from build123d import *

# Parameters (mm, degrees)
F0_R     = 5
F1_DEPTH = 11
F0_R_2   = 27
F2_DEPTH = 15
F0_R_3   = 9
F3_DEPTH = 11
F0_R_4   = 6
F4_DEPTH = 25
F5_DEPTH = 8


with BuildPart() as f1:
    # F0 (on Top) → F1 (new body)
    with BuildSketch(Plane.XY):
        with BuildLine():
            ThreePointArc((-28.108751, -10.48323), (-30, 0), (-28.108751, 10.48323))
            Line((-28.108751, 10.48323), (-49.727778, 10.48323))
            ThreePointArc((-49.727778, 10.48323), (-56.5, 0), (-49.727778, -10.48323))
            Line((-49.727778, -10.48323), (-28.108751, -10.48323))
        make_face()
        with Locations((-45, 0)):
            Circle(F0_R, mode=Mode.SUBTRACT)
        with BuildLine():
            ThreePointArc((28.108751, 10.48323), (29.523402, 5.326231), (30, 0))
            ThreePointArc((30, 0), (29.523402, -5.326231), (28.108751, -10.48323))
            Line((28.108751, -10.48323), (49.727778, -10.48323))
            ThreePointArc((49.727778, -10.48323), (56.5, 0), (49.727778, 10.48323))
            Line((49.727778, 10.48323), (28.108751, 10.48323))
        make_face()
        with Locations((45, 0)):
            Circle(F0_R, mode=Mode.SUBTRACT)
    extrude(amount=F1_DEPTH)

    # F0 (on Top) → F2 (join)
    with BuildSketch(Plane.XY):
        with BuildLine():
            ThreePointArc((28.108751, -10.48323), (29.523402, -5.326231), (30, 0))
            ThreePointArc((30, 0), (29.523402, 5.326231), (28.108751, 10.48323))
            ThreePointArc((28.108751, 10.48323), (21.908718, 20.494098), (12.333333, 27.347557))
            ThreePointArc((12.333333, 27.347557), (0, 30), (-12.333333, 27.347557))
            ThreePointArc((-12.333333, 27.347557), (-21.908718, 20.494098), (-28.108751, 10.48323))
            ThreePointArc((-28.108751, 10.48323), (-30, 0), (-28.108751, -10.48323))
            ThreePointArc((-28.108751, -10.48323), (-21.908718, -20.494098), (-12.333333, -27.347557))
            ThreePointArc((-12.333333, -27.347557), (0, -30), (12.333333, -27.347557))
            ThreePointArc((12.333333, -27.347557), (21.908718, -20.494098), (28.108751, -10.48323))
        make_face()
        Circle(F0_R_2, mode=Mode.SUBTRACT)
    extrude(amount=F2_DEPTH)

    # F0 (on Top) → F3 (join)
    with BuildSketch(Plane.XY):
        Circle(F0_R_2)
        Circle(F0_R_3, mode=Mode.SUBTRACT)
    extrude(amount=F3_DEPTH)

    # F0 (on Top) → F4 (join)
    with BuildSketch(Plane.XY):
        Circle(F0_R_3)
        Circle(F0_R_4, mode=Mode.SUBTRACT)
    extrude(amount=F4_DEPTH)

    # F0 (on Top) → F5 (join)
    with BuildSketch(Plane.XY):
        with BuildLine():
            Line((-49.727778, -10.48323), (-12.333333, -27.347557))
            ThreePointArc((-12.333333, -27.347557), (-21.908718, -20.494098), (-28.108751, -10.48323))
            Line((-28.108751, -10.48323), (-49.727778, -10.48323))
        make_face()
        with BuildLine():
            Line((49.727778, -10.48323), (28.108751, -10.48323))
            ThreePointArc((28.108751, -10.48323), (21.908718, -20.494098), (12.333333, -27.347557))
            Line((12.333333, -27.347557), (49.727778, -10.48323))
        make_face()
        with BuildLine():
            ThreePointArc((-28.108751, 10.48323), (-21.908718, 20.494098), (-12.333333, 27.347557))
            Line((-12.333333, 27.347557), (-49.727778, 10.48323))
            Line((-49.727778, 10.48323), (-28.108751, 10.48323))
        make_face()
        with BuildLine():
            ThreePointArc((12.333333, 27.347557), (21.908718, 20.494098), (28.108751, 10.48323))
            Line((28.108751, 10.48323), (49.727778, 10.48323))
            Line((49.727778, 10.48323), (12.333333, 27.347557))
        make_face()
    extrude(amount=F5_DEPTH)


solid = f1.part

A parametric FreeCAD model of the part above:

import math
import FreeCAD as App
import Part
import Sketcher
from FreeCAD import Vector

doc = App.newDocument("Part")
body = doc.addObject("PartDesign::Body", "Body")
body.AllowCompound = True

sketch1 = doc.addObject("Sketcher::SketchObject", "Sketch")
body.addObject(sketch1)
sketch1.AttachmentSupport = (doc.XY_Plane, [""])
sketch1.MapMode = "FlatFace"
sketch1.addGeometry([
    Part.ArcOfCircle(Part.Circle(Vector(-0.000002, 0, 0), Vector(0, 0, 1), 29.999998), math.radians(159.546871), math.radians(200.453129)),
    Part.LineSegment(Vector(-28.108751, 10.48323, 0), Vector(-49.727778, 10.48323, 0)),
    Part.ArcOfCircle(Part.Circle(Vector(-45, 0, 0), Vector(0, 0, 1), 11.5), math.radians(114.274652), math.radians(245.725348)),
    Part.LineSegment(Vector(-49.727778, -10.48323, 0), Vector(-28.108751, -10.48323, 0)),
    Part.Circle(Vector(-45, 0, 0), Vector(0, 0, 1), 5),
    Part.ArcOfCircle(Part.Circle(Vector(0.000006, 0.000001, 0), Vector(0, 0, 1), 29.999994), math.radians(-0.000001), math.radians(20.45313)),
    Part.ArcOfCircle(Part.Circle(Vector(0.000006, -0.000001, 0), Vector(0, 0, 1), 29.999994), math.radians(-20.45313), math.radians(0.000001)),
    Part.LineSegment(Vector(28.108751, -10.48323, 0), Vector(49.727778, -10.48323, 0)),
    Part.ArcOfCircle(Part.Circle(Vector(45, 0, 0), Vector(0, 0, 1), 11.5), math.radians(-65.725348), math.radians(65.725348)),
    Part.LineSegment(Vector(49.727778, 10.48323, 0), Vector(28.108751, 10.48323, 0)),
    Part.Circle(Vector(45, 0, 0), Vector(0, 0, 1), 5),
], False)
sketch1.addConstraint([
    Sketcher.Constraint("Coincident", 0, 1, 1, 1),
    Sketcher.Constraint("Coincident", 1, 2, 2, 1),
    Sketcher.Constraint("Coincident", 2, 2, 3, 1),
    Sketcher.Constraint("Coincident", 3, 2, 0, 2),
    Sketcher.Constraint("Tangent", 5, 1, 6, 2),
    Sketcher.Constraint("Coincident", 6, 1, 7, 1),
    Sketcher.Constraint("Coincident", 7, 2, 8, 1),
    Sketcher.Constraint("Coincident", 8, 2, 9, 1),
    Sketcher.Constraint("Coincident", 9, 2, 5, 2),
    Sketcher.Constraint("Horizontal", 1),
    Sketcher.Constraint("Horizontal", 3),
    Sketcher.Constraint("Horizontal", 7),
    Sketcher.Constraint("Horizontal", 9),
    Sketcher.Constraint("Coincident", 0, 3, -1, 1),
    Sketcher.Constraint("Coincident", 5, 3, -1, 1),
    Sketcher.Constraint("Coincident", 4, 3, 2, 3),
    Sketcher.Constraint("Coincident", 10, 3, 8, 3),
    Sketcher.Constraint("Equal", 5, 6),
    Sketcher.Constraint("Equal", 2, 8),
    Sketcher.Constraint("Equal", 4, 10),
    Sketcher.Constraint("Symmetric", 2, 3, 8, 3, -1, 1),
    Sketcher.Constraint("Symmetric", 0, 1, 6, 1, -1, 1),
    Sketcher.Constraint("Symmetric", 2, 2, 7, 2, -2),
    Sketcher.Constraint("PointOnObject", 5, 1, -1),
    Sketcher.Constraint("Horizontal", 1, 2, 8, 2),
    Sketcher.Constraint("Diameter", 4, 10.0),
    Sketcher.Constraint("Radius", 0, 29.999998),
    Sketcher.Constraint("Radius", 2, 11.5),
    Sketcher.Constraint("DistanceX", 2, 3, -1, 1, 45.0),
    Sketcher.Constraint("DistanceX", 1, 2, 1, 1, 21.619027),
])
pad1 = doc.addObject("PartDesign::Pad", "Pad")
body.addObject(pad1)
pad1.Profile = sketch1
pad1.Length = 11

sketch2 = doc.addObject("Sketcher::SketchObject", "Sketch001")
body.addObject(sketch2)
sketch2.AttachmentSupport = (doc.XY_Plane, [""])
sketch2.MapMode = "FlatFace"
sketch2.addGeometry([
    Part.ArcOfCircle(Part.Circle(Vector(0.000006, -0.000001, 0), Vector(0, 0, 1), 29.999994), math.radians(-20.45313), math.radians(0.000001)),
    Part.ArcOfCircle(Part.Circle(Vector(0.000006, 0.000001, 0), Vector(0, 0, 1), 29.999994), math.radians(-0.000001), math.radians(20.45313)),
    Part.ArcOfCircle(Part.Circle(Vector(-0.000001, -0.000001, 0), Vector(0, 0, 1), 30.000001), math.radians(20.45313), math.radians(65.725348)),
    Part.ArcOfCircle(Part.Circle(Vector(0, 0.000004, 0), Vector(0, 0, 1), 29.999996), math.radians(65.725345), math.radians(114.274655)),
    Part.ArcOfCircle(Part.Circle(Vector(0.000001, -0.000001, 0), Vector(0, 0, 1), 30.000001), math.radians(114.274652), math.radians(159.54687)),
    Part.ArcOfCircle(Part.Circle(Vector(-0.000002, 0, 0), Vector(0, 0, 1), 29.999998), math.radians(159.546871), math.radians(200.453129)),
    Part.ArcOfCircle(Part.Circle(Vector(0.000001, 0.000001, 0), Vector(0, 0, 1), 30.000001), math.radians(-159.54687), math.radians(-114.274652)),
    Part.ArcOfCircle(Part.Circle(Vector(0, -0.000004, 0), Vector(0, 0, 1), 29.999996), math.radians(-114.274655), math.radians(-65.725345)),
    Part.ArcOfCircle(Part.Circle(Vector(-0.000001, 0.000001, 0), Vector(0, 0, 1), 30.000001), math.radians(-65.725348), math.radians(-20.45313)),
    Part.Circle(Vector(0, 0, 0), Vector(0, 0, 1), 27),
], False)
sketch2.addConstraint([
    Sketcher.Constraint("Tangent", 0, 2, 1, 1),
    Sketcher.Constraint("Tangent", 1, 2, 2, 1),
    Sketcher.Constraint("Tangent", 2, 2, 3, 1),
    Sketcher.Constraint("Tangent", 3, 2, 4, 1),
    Sketcher.Constraint("Tangent", 4, 2, 5, 1),
    Sketcher.Constraint("Tangent", 5, 2, 6, 1),
    Sketcher.Constraint("Tangent", 6, 2, 7, 1),
    Sketcher.Constraint("Tangent", 7, 2, 8, 1),
    Sketcher.Constraint("Tangent", 8, 2, 0, 1),
    Sketcher.Constraint("Coincident", 0, 3, -1, 1),
    Sketcher.Constraint("Coincident", 2, 3, -1, 1),
    Sketcher.Constraint("Coincident", 4, 3, -1, 1),
    Sketcher.Constraint("Coincident", 6, 3, -1, 1),
    Sketcher.Constraint("Coincident", 9, 3, -1, 1),
    Sketcher.Constraint("PointOnObject", 0, 2, -1),
    Sketcher.Constraint("Horizontal", 2, 2, 3, 2),
    Sketcher.Constraint("Horizontal", 1, 2, 4, 2),
    Sketcher.Constraint("Horizontal", 6, 2, 7, 2),
    Sketcher.Constraint("Horizontal", 5, 2, 8, 2),
    Sketcher.Constraint("Vertical", 4, 2, 5, 2),
    Sketcher.Constraint("Vertical", 3, 2, 6, 2),
    Sketcher.Constraint("Diameter", 9, 54.0),
    Sketcher.Constraint("Radius", 2, 30.000001),
    Sketcher.Constraint("DistanceX", -1, 1, 1, 2, 28.108751),
    Sketcher.Constraint("DistanceX", 2, 2, 1, 2, 15.775418),
])
pad2 = doc.addObject("PartDesign::Pad", "Pad001")
body.addObject(pad2)
pad2.Profile = sketch2
pad2.Length = 15

sketch3 = doc.addObject("Sketcher::SketchObject", "Sketch002")
body.addObject(sketch3)
sketch3.AttachmentSupport = (doc.XY_Plane, [""])
sketch3.MapMode = "FlatFace"
sketch3.addGeometry([
    Part.Circle(Vector(0, 0, 0), Vector(0, 0, 1), 27),
    Part.Circle(Vector(0, 0, 0), Vector(0, 0, 1), 9),
], False)
sketch3.addConstraint([
    Sketcher.Constraint("Coincident", 0, 3, -1, 1),
    Sketcher.Constraint("Coincident", 1, 3, -1, 1),
    Sketcher.Constraint("Diameter", 0, 54.0),
    Sketcher.Constraint("Diameter", 1, 18.0),
])
pad3 = doc.addObject("PartDesign::Pad", "Pad002")
body.addObject(pad3)
pad3.Profile = sketch3
pad3.Length = 11

sketch4 = doc.addObject("Sketcher::SketchObject", "Sketch003")
body.addObject(sketch4)
sketch4.AttachmentSupport = (doc.XY_Plane, [""])
sketch4.MapMode = "FlatFace"
sketch4.addGeometry([
    Part.Circle(Vector(0, 0, 0), Vector(0, 0, 1), 9),
    Part.Circle(Vector(0, 0, 0), Vector(0, 0, 1), 6),
], False)
sketch4.addConstraint([
    Sketcher.Constraint("Coincident", 0, 3, -1, 1),
    Sketcher.Constraint("Coincident", 1, 3, -1, 1),
    Sketcher.Constraint("Diameter", 0, 18.0),
    Sketcher.Constraint("Diameter", 1, 12.0),
])
pad4 = doc.addObject("PartDesign::Pad", "Pad003")
body.addObject(pad4)
pad4.Profile = sketch4
pad4.Length = 25

sketch5 = doc.addObject("Sketcher::SketchObject", "Sketch004")
body.addObject(sketch5)
sketch5.AttachmentSupport = (doc.XY_Plane, [""])
sketch5.MapMode = "FlatFace"
sketch5.addGeometry([
    Part.LineSegment(Vector(-49.727778, -10.48323, 0), Vector(-12.333333, -27.347557, 0)),
    Part.ArcOfCircle(Part.Circle(Vector(0.000001, 0.000001, 0), Vector(0, 0, 1), 30.000001), math.radians(-159.54687), math.radians(-114.274652)),
    Part.LineSegment(Vector(-28.108751, -10.48323, 0), Vector(-49.727778, -10.48323, 0)),
    Part.LineSegment(Vector(49.727778, -10.48323, 0), Vector(28.108751, -10.48323, 0)),
    Part.ArcOfCircle(Part.Circle(Vector(-0.000001, 0.000001, 0), Vector(0, 0, 1), 30.000001), math.radians(-65.725348), math.radians(-20.45313)),
    Part.LineSegment(Vector(12.333333, -27.347557, 0), Vector(49.727778, -10.48323, 0)),
    Part.ArcOfCircle(Part.Circle(Vector(0.000001, -0.000001, 0), Vector(0, 0, 1), 30.000001), math.radians(114.274652), math.radians(159.54687)),
    Part.LineSegment(Vector(-12.333333, 27.347557, 0), Vector(-49.727778, 10.48323, 0)),
    Part.LineSegment(Vector(-49.727778, 10.48323, 0), Vector(-28.108751, 10.48323, 0)),
    Part.ArcOfCircle(Part.Circle(Vector(-0.000001, -0.000001, 0), Vector(0, 0, 1), 30.000001), math.radians(20.45313), math.radians(65.725348)),
    Part.LineSegment(Vector(28.108751, 10.48323, 0), Vector(49.727778, 10.48323, 0)),
    Part.LineSegment(Vector(49.727778, 10.48323, 0), Vector(12.333333, 27.347557, 0)),
], False)
sketch5.addConstraint([
    Sketcher.Constraint("Tangent", 0, 2, 1, 2),
    Sketcher.Constraint("Coincident", 1, 1, 2, 1),
    Sketcher.Constraint("Coincident", 2, 2, 0, 1),
    Sketcher.Constraint("Coincident", 3, 2, 4, 2),
    Sketcher.Constraint("Tangent", 4, 1, 5, 1),
    Sketcher.Constraint("Coincident", 5, 2, 3, 1),
    Sketcher.Constraint("Tangent", 6, 1, 7, 1),
    Sketcher.Constraint("Coincident", 7, 2, 8, 1),
    Sketcher.Constraint("Coincident", 8, 2, 6, 2),
    Sketcher.Constraint("Coincident", 9, 1, 10, 1),
    Sketcher.Constraint("Coincident", 10, 2, 11, 1),
    Sketcher.Constraint("Tangent", 11, 2, 9, 2),
    Sketcher.Constraint("Horizontal", 2),
    Sketcher.Constraint("Horizontal", 3),
    Sketcher.Constraint("Horizontal", 8),
    Sketcher.Constraint("Horizontal", 10),
    Sketcher.Constraint("Coincident", 1, 3, -1, 1),
    Sketcher.Constraint("Coincident", 4, 3, -1, 1),
    Sketcher.Constraint("Coincident", 6, 3, -1, 1),
    Sketcher.Constraint("Coincident", 9, 3, -1, 1),
    Sketcher.Constraint("Equal", 1, 4),
    Sketcher.Constraint("Equal", 4, 6),
    Sketcher.Constraint("Equal", 6, 9),
    Sketcher.Constraint("Symmetric", 5, 2, 7, 2, -1, 1),
    Sketcher.Constraint("Symmetric", 2, 2, 10, 2, -1, 1),
    Sketcher.Constraint("Symmetric", 2, 2, 5, 2, -2),
    Sketcher.Constraint("Radius", 1, 30.000001),
    Sketcher.Constraint("DistanceX", 2, 2, 2, 1, 21.619027),
    Sketcher.Constraint("DistanceX", 1, 1, -1, 1, 28.108751),
])
pad5 = doc.addObject("PartDesign::Pad", "Pad004")
body.addObject(pad5)
pad5.Profile = sketch5
pad5.Length = 8

doc.recompute()
